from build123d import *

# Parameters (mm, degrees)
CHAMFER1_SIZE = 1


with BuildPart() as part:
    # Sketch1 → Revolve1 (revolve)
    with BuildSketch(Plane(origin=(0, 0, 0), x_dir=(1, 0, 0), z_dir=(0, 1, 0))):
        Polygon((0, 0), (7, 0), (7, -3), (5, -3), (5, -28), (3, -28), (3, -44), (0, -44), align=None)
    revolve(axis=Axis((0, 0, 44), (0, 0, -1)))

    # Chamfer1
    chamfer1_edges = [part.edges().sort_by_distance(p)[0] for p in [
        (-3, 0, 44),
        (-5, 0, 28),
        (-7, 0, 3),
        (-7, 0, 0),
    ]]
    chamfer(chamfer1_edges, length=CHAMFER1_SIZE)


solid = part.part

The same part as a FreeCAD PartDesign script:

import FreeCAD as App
import Part
import Sketcher
from FreeCAD import Vector
Q = App.Units.Quantity


def edges_at(feature, points):
    """Names of the edges that pass closest to the given points."""
    edges = feature.Shape.Edges
    near = lambda p: min(range(len(edges)), key=lambda i: edges[i].distToShape(Part.Vertex(*p))[0])
    return sorted({f"Edge{near(p) + 1}" for p in points})


def add_polygon(sketch, points):
    """Adds a closed chain of lines whose ends are joined by coincident constraints."""
    first, n = sketch.GeometryCount, len(points)
    for a, b in zip(points, points[1:] + points[:1]):
        sketch.addGeometry(Part.LineSegment(App.Vector(*a, 0), App.Vector(*b, 0)), False)
    for i in range(n):
        sketch.addConstraint(Sketcher.Constraint("Coincident", first + i, 2, first + (i + 1) % n, 1))

doc = App.newDocument("Part")
body = doc.addObject("PartDesign::Body", "Body")

# Sketch on XZ plane
sketch1 = doc.addObject("Sketcher::SketchObject", "Sketch")
body.addObject(sketch1)
sketch1.AttachmentSupport = (doc.XZ_Plane, [""])
sketch1.MapMode = "FlatFace"
add_polygon(sketch1, [(7, 0), (0, 0), (0, 44), (3, 44), (3, 28), (5, 28), (5, 3), (7, 3)])  # lines 0-7
sketch1.addConstraint(Sketcher.Constraint("Horizontal", 0))
sketch1.addConstraint(Sketcher.Constraint("Vertical", 1))
sketch1.addConstraint(Sketcher.Constraint("Horizontal", 2))
sketch1.addConstraint(Sketcher.Constraint("Vertical", 3))
sketch1.addConstraint(Sketcher.Constraint("Horizontal", 4))
sketch1.addConstraint(Sketcher.Constraint("Vertical", 5))
sketch1.addConstraint(Sketcher.Constraint("Horizontal", 6))
sketch1.addConstraint(Sketcher.Constraint("Vertical", 7))
sketch1.addConstraint(Sketcher.Constraint("Coincident", 0, 2, -1, 1))
sketch1.addConstraint(Sketcher.Constraint("Equal", 4, 6))
sketch1.addConstraint(Sketcher.Constraint("Equal", 2, 7))
sketch1.addConstraint(Sketcher.Constraint("DistanceX", 0, 2, 0, 1, Q("7 mm")))
sketch1.addConstraint(Sketcher.Constraint("DistanceX", 2, 1, 2, 2, Q("3 mm")))
sketch1.addConstraint(Sketcher.Constraint("DistanceY", 1, 1, 1, 2, Q("44 mm")))
sketch1.addConstraint(Sketcher.Constraint("DistanceY", 3, 2, 3, 1, Q("16 mm")))
revolution = doc.addObject("PartDesign::Revolution", "Revolution")
body.addObject(revolution)
revolution.Profile = sketch1
revolution.ReferenceAxis = (sketch1, ["V_Axis"])
revolution.Angle = 360
doc.recompute()

chamfer = doc.addObject("PartDesign::Chamfer", "Chamfer")
body.addObject(chamfer)
chamfer.Base = (revolution, edges_at(revolution, [
    (-3, 0, 44),
    (-5, 0, 28),
    (-7, 0, 3),
    (-7, 0, 0),
]))
chamfer.Size = 1

doc.recompute()
